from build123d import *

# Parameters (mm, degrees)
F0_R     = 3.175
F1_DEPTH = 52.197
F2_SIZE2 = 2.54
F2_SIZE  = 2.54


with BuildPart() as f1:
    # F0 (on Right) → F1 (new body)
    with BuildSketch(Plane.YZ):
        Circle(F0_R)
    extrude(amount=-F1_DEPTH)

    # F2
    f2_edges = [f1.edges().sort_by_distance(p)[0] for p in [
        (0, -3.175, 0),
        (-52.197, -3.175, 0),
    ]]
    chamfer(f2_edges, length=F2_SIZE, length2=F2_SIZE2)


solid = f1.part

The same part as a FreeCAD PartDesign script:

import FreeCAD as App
import Part
import Sketcher

V = App.Vector
Q = App.Units.Quantity


def edges_at(feature, points):
    """Names of the edges that pass closest to the given points."""
    edges = feature.Shape.Edges
    near = lambda p: min(range(len(edges)), key=lambda i: edges[i].distToShape(Part.Vertex(*p))[0])
    return sorted({f"Edge{near(p) + 1}" for p in points})

doc = App.newDocument("Part")
body = doc.addObject("PartDesign::Body", "Body")

# Sketch on YZ plane
sketch1 = body.newObject("Sketcher::SketchObject", "Sketch")
sketch1.AttachmentSupport = (doc.getObject("YZ_Plane"), [""])
sketch1.MapMode = "FlatFace"
sketch1.addGeometry(Part.Circle(V(0, 0, 0), V(0, 0, 1), 3.2), False)
sketch1.addConstraint(Sketcher.Constraint("Coincident", 0, 3, -1, 1))
sketch1.addConstraint(Sketcher.Constraint("Diameter", 0, Q("0.25 in")))
pad1 = body.newObject("PartDesign::Pad", "Pad")
pad1.Profile = sketch1
pad1.Length = Q("2.055 in")
pad1.Reversed = True
doc.recompute()

chamfer = body.newObject("PartDesign::Chamfer", "Chamfer")
chamfer.Base = (pad1, edges_at(pad1, [(0, -3.175, 0), (-52.197, -3.175, 0)]))
chamfer.ChamferType = "Two distances"
chamfer.Size = Q("0.1 in")
chamfer.Size2 = Q("0.1 in")

doc.recompute()
